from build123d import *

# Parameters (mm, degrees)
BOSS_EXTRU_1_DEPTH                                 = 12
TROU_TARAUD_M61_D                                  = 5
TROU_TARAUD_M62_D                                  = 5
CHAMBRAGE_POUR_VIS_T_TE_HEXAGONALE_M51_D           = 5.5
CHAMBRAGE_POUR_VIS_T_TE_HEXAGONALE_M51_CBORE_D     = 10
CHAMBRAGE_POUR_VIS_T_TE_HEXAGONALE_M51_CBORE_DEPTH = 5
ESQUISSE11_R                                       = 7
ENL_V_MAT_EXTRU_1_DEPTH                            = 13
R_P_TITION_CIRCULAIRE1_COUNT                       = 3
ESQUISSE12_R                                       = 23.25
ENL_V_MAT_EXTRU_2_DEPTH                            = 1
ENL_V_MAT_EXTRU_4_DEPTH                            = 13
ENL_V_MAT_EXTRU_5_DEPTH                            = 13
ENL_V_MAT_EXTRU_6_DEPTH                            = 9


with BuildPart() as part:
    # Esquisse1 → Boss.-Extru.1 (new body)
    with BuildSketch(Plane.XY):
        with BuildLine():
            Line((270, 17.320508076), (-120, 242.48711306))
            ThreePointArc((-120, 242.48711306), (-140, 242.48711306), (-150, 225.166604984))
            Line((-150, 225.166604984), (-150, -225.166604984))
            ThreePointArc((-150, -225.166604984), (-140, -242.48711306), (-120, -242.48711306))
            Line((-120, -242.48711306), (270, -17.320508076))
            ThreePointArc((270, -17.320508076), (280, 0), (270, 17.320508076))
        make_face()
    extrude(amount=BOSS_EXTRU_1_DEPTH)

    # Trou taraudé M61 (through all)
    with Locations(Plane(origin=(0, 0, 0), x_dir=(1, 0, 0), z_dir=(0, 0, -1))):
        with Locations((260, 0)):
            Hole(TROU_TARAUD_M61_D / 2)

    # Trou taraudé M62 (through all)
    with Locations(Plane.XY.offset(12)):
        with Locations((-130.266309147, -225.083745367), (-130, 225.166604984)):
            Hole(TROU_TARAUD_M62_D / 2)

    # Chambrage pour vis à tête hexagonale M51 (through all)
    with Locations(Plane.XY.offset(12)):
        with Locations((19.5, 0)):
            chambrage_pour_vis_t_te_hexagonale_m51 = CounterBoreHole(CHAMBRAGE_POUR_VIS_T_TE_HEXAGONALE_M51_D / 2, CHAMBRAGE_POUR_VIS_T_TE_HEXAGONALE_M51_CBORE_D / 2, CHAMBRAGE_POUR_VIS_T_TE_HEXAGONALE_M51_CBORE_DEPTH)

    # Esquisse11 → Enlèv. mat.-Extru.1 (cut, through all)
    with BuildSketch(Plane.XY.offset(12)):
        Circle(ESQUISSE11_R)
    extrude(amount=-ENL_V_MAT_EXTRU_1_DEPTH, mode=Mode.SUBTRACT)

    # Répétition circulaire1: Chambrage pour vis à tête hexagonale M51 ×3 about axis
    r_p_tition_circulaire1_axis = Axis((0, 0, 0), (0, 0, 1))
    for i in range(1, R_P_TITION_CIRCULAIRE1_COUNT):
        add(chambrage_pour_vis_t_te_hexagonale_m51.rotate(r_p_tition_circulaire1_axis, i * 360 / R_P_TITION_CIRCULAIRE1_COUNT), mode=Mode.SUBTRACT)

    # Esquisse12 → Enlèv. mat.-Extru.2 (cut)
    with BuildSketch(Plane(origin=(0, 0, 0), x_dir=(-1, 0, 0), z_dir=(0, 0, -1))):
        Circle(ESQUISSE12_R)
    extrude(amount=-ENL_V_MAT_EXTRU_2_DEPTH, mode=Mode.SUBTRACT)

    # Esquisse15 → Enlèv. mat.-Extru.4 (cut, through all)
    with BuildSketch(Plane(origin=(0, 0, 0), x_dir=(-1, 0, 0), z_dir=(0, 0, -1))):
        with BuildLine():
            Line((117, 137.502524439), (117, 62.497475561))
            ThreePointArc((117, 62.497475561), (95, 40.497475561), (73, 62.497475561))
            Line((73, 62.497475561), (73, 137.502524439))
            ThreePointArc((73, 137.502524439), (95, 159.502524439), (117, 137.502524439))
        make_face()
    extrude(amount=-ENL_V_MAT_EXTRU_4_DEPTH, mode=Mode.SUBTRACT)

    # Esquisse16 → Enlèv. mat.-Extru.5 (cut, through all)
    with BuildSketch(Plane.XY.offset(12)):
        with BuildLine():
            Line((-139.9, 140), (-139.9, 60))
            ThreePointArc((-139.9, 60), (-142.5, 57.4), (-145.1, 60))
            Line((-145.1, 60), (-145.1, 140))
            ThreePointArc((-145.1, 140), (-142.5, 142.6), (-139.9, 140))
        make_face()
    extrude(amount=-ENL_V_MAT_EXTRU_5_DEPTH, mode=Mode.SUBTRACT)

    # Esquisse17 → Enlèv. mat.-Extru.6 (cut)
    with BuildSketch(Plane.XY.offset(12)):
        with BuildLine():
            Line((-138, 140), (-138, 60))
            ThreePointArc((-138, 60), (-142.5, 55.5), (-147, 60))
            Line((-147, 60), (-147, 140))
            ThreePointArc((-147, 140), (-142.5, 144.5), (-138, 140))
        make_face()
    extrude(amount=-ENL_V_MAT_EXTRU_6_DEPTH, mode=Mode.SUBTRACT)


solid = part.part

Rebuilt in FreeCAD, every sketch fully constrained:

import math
import FreeCAD as App
import Part
import Sketcher
Q = App.Units.Quantity

doc = App.newDocument("Part")
body = doc.addObject("PartDesign::Body", "Body")

# Sketch on XY plane
sketch1 = body.newObject("Sketcher::SketchObject", "Sketch")
sketch1.AttachmentSupport = (doc.getObject("XY_Plane"), [""])
sketch1.MapMode = "FlatFace"
sketch1.addGeometry(Part.LineSegment(App.Vector(270, 17, 0), App.Vector(-120, 242, 0)), False)
sketch1.addGeometry(Part.ArcOfCircle(Part.Circle(App.Vector(-130, 225, 0), App.Vector(0, 0, 1), 20), math.radians(60), math.radians(180)), False)
sketch1.addGeometry(Part.LineSegment(App.Vector(-150, 225, 0), App.Vector(-150, -225, 0)), False)
sketch1.addGeometry(Part.ArcOfCircle(Part.Circle(App.Vector(-130, -225, 0), App.Vector(0, 0, 1), 20), math.radians(180), math.radians(300)), False)
sketch1.addGeometry(Part.LineSegment(App.Vector(-120, -242, 0), App.Vector(270, -17, 0)), False)
sketch1.addGeometry(Part.ArcOfCircle(Part.Circle(App.Vector(260, 0, 0), App.Vector(0, 0, 1), 20), math.radians(-60), math.radians(60)), False)
sketch1.addConstraint(Sketcher.Constraint("Tangent", 0, 2, 1, 1))
sketch1.addConstraint(Sketcher.Constraint("Tangent", 1, 2, 2, 1))
sketch1.addConstraint(Sketcher.Constraint("Tangent", 2, 2, 3, 1))
sketch1.addConstraint(Sketcher.Constraint("Tangent", 3, 2, 4, 1))
sketch1.addConstraint(Sketcher.Constraint("Tangent", 4, 2, 5, 1))
sketch1.addConstraint(Sketcher.Constraint("Tangent", 5, 2, 0, 1))
sketch1.addConstraint(Sketcher.Constraint("Vertical", 2))
sketch1.addConstraint(Sketcher.Constraint("Equal", 1, 3))
sketch1.addConstraint(Sketcher.Constraint("Equal", 3, 5))
sketch1.addConstraint(Sketcher.Constraint("Symmetric", 0, 2, 3, 2, -1))
sketch1.addConstraint(Sketcher.Constraint("Radius", 1, 20.0))
sketch1.addConstraint(Sketcher.Constraint("Angle", 0, Q("150 deg")))
sketch1.addConstraint(Sketcher.Constraint("DistanceX", 1, 3, -1, 1, 130.0))
sketch1.addConstraint(Sketcher.Constraint("DistanceX", -1, 1, 5, 3, 260.0))
pad1 = body.newObject("PartDesign::Pad", "Pad")
pad1.Profile = sketch1
pad1.Length = 12

# Sketch on XY plane
sketch2 = body.newObject("Sketcher::SketchObject", "Sketch001")
sketch2.AttachmentSupport = (doc.getObject("XY_Plane"), [""])
sketch2.MapMode = "FlatFace"
sketch2.addGeometry(Part.Circle(App.Vector(260, 0, 0), App.Vector(0, 0, 1), 2.5), False)
sketch2.addConstraint(Sketcher.Constraint("PointOnObject", 0, 3, -1))
sketch2.addConstraint(Sketcher.Constraint("Diameter", 0, 5.0))
sketch2.addConstraint(Sketcher.Constraint("DistanceX", -1, 1, 0, 3, 260.0))
doc.recompute()
hole = body.newObject("PartDesign::Hole", "Hole")
hole.Profile = sketch2
hole.ThreadType = "None"
hole.Diameter = 5
hole.DepthType = "ThroughAll"
hole.Reversed = True

# Sketch on XY plane
sketch3 = body.newObject("Sketcher::SketchObject", "Sketch002")
sketch3.AttachmentSupport = (doc.getObject("XY_Plane"), [""])
sketch3.MapMode = "FlatFace"
sketch3.AttachmentOffset = App.Placement(App.Vector(0, 0, 12), App.Rotation())
sketch3.addGeometry(Part.Circle(App.Vector(-130.3, -225.1, 0), App.Vector(0, 0, 1), 2.5), False)
sketch3.addGeometry(Part.Circle(App.Vector(-130, 225.2, 0), App.Vector(0, 0, 1), 2.5), False)
sketch3.addConstraint(Sketcher.Constraint("Equal", 0, 1))
sketch3.addConstraint(Sketcher.Constraint("Diameter", 0, 5.0))
sketch3.addConstraint(Sketcher.Constraint("DistanceX", 1, 3, -1, 1, 130.0))
sketch3.addConstraint(Sketcher.Constraint("DistanceX", 0, 3, -1, 1, 130.266309))
sketch3.addConstraint(Sketcher.Constraint("DistanceY", 0, 3, 1, 3, 450.25035))
sketch3.addConstraint(Sketcher.Constraint("DistanceY", 0, 3, -1, 1, 225.083745))
doc.recompute()
hole2 = body.newObject("PartDesign::Hole", "Hole001")
hole2.Profile = sketch3
hole2.ThreadType = "None"
hole2.Diameter = 5
hole2.DepthType = "ThroughAll"

# Sketch on XY plane
sketch4 = body.newObject("Sketcher::SketchObject", "Sketch003")
sketch4.AttachmentSupport = (doc.getObject("XY_Plane"), [""])
sketch4.MapMode = "FlatFace"
sketch4.AttachmentOffset = App.Placement(App.Vector(0, 0, 12), App.Rotation())
sketch4.addGeometry(Part.Circle(App.Vector(19.5, 0, 0), App.Vector(0, 0, 1), 2.8), False)
sketch4.addConstraint(Sketcher.Constraint("PointOnObject", 0, 3, -1))
sketch4.addConstraint(Sketcher.Constraint("Diameter", 0, 5.5))
sketch4.addConstraint(Sketcher.Constraint("DistanceX", -1, 1, 0, 3, 19.5))
doc.recompute()
hole3 = body.newObject("PartDesign::Hole", "Hole002")
hole3.Profile = sketch4
hole3.ThreadType = "None"
hole3.Diameter = 5.5
hole3.DepthType = "ThroughAll"
hole3.HoleCutType = "Counterbore"
hole3.HoleCutDiameter = 10
hole3.HoleCutDepth = 5

# Sketch on XY plane
sketch5 = body.newObject("Sketcher::SketchObject", "Sketch004")
sketch5.AttachmentSupport = (doc.getObject("XY_Plane"), [""])
sketch5.MapMode = "FlatFace"
sketch5.AttachmentOffset = App.Placement(App.Vector(0, 0, 12), App.Rotation())
sketch5.addGeometry(Part.Circle(App.Vector(0, 0, 0), App.Vector(0, 0, 1), 7), False)
sketch5.addConstraint(Sketcher.Constraint("Coincident", 0, 3, -1, 1))
sketch5.addConstraint(Sketcher.Constraint("Diameter", 0, 14.0))
pocket1 = body.newObject("PartDesign::Pocket", "Pocket")
pocket1.Profile = sketch5
pocket1.Type = "ThroughAll"
doc.recompute()

polarpattern = body.newObject("PartDesign::PolarPattern", "PolarPattern")
polarpattern.Originals = [hole3]
polarpattern.Axis = (doc.getObject("Z_Axis"), [""])
polarpattern.Angle = 360
polarpattern.Occurrences = 3
body.Tip = polarpattern

# Sketch on XY plane
sketch6 = body.newObject("Sketcher::SketchObject", "Sketch005")
sketch6.AttachmentSupport = (doc.getObject("XY_Plane"), [""])
sketch6.MapMode = "FlatFace"
sketch6.addGeometry(Part.Circle(App.Vector(0, 0, 0), App.Vector(0, 0, 1), 23), False)
sketch6.addConstraint(Sketcher.Constraint("Coincident", 0, 3, -1, 1))
sketch6.addConstraint(Sketcher.Constraint("Diameter", 0, 46.5))
pocket2 = body.newObject("PartDesign::Pocket", "Pocket001")
pocket2.Profile = sketch6
pocket2.Length = 1
pocket2.Reversed = True

# Sketch on XY plane
sketch7 = body.newObject("Sketcher::SketchObject", "Sketch006")
sketch7.AttachmentSupport = (doc.getObject("XY_Plane"), [""])
sketch7.MapMode = "FlatFace"
sketch7.addGeometry(Part.LineSegment(App.Vector(-117, 62, 0), App.Vector(-117, 138, 0)), False)
sketch7.addGeometry(Part.ArcOfCircle(Part.Circle(App.Vector(-95, 138, 0), App.Vector(0, 0, 1), 22), math.radians(0), math.radians(180)), False)
sketch7.addGeometry(Part.LineSegment(App.Vector(-73, 138, 0), App.Vector(-73, 62, 0)), False)
sketch7.addGeometry(Part.ArcOfCircle(Part.Circle(App.Vector(-95, 62, 0), App.Vector(0, 0, 1), 22), math.radians(180), math.radians(360)), False)
sketch7.addConstraint(Sketcher.Constraint("Tangent", 0, 2, 1, 2))
sketch7.addConstraint(Sketcher.Constraint("Tangent", 1, 1, 2, 1))
sketch7.addConstraint(Sketcher.Constraint("Tangent", 2, 2, 3, 2))
sketch7.addConstraint(Sketcher.Constraint("Tangent", 3, 1, 0, 1))
sketch7.addConstraint(Sketcher.Constraint("Vertical", 0))
sketch7.addConstraint(Sketcher.Constraint("Vertical", 2))
sketch7.addConstraint(Sketcher.Constraint("Radius", 1, 22.0))
sketch7.addConstraint(Sketcher.Constraint("DistanceX", 1, 3, -1, 1, 95.0))
sketch7.addConstraint(Sketcher.Constraint("DistanceY", 0, 1, 0, 2, 75.005049))
sketch7.addConstraint(Sketcher.Constraint("DistanceY", -1, 1, 1, 3, 137.502524))
pocket3 = body.newObject("PartDesign::Pocket", "Pocket002")
pocket3.Profile = sketch7
pocket3.Type = "ThroughAll"
pocket3.Reversed = True

# Sketch on XY plane
sketch8 = body.newObject("Sketcher::SketchObject", "Sketch007")
sketch8.AttachmentSupport = (doc.getObject("XY_Plane"), [""])
sketch8.MapMode = "FlatFace"
sketch8.AttachmentOffset = App.Placement(App.Vector(0, 0, 12), App.Rotation())
sketch8.addGeometry(Part.LineSegment(App.Vector(-139.9, 60, 0), App.Vector(-139.9, 140, 0)), False)
sketch8.addGeometry(Part.ArcOfCircle(Part.Circle(App.Vector(-142.5, 140, 0), App.Vector(0, 0, 1), 2.6), math.radians(0), math.radians(180)), False)
sketch8.addGeometry(Part.LineSegment(App.Vector(-145.1, 140, 0), App.Vector(-145.1, 60, 0)), False)
sketch8.addGeometry(Part.ArcOfCircle(Part.Circle(App.Vector(-142.5, 60, 0), App.Vector(0, 0, 1), 2.6), math.radians(180), math.radians(360)), False)
sketch8.addConstraint(Sketcher.Constraint("Tangent", 0, 2, 1, 1))
sketch8.addConstraint(Sketcher.Constraint("Tangent", 1, 2, 2, 1))
sketch8.addConstraint(Sketcher.Constraint("Tangent", 2, 2, 3, 1))
sketch8.addConstraint(Sketcher.Constraint("Tangent", 3, 2, 0, 1))
sketch8.addConstraint(Sketcher.Constraint("Vertical", 0))
sketch8.addConstraint(Sketcher.Constraint("Vertical", 2))
sketch8.addConstraint(Sketcher.Constraint("Radius", 1, 2.6))
sketch8.addConstraint(Sketcher.Constraint("DistanceY", 0, 1, 0, 2, 80.0))
sketch8.addConstraint(Sketcher.Constraint("DistanceY", -1, 1, 1, 3, 140.0))
sketch8.addConstraint(Sketcher.Constraint("DistanceX", 1, 3, -1, 1, 142.5))
pocket4 = body.newObject("PartDesign::Pocket", "Pocket003")
pocket4.Profile = sketch8
pocket4.Type = "ThroughAll"

# Sketch on XY plane
sketch9 = body.newObject("Sketcher::SketchObject", "Sketch008")
sketch9.AttachmentSupport = (doc.getObject("XY_Plane"), [""])
sketch9.MapMode = "FlatFace"
sketch9.AttachmentOffset = App.Placement(App.Vector(0, 0, 12), App.Rotation())
sketch9.addGeometry(Part.LineSegment(App.Vector(-138, 60, 0), App.Vector(-138, 140, 0)), False)
sketch9.addGeometry(Part.ArcOfCircle(Part.Circle(App.Vector(-142.5, 140, 0), App.Vector(0, 0, 1), 4.5), math.radians(0), math.radians(180)), False)
sketch9.addGeometry(Part.LineSegment(App.Vector(-147, 140, 0), App.Vector(-147, 60, 0)), False)
sketch9.addGeometry(Part.ArcOfCircle(Part.Circle(App.Vector(-142.5, 60, 0), App.Vector(0, 0, 1), 4.5), math.radians(180), math.radians(360)), False)
sketch9.addConstraint(Sketcher.Constraint("Tangent", 0, 2, 1, 1))
sketch9.addConstraint(Sketcher.Constraint("Tangent", 1, 2, 2, 1))
sketch9.addConstraint(Sketcher.Constraint("Tangent", 2, 2, 3, 1))
sketch9.addConstraint(Sketcher.Constraint("Tangent", 3, 2, 0, 1))
sketch9.addConstraint(Sketcher.Constraint("Vertical", 0))
sketch9.addConstraint(Sketcher.Constraint("Vertical", 2))
sketch9.addConstraint(Sketcher.Constraint("Radius", 1, 4.5))
sketch9.addConstraint(Sketcher.Constraint("DistanceY", 0, 1, 0, 2, 80.0))
sketch9.addConstraint(Sketcher.Constraint("DistanceY", -1, 1, 1, 3, 140.0))
sketch9.addConstraint(Sketcher.Constraint("DistanceX", 0, 2, -1, 1, 138.0))
pocket5 = body.newObject("PartDesign::Pocket", "Pocket004")
pocket5.Profile = sketch9
pocket5.Length = 9

doc.recompute()
